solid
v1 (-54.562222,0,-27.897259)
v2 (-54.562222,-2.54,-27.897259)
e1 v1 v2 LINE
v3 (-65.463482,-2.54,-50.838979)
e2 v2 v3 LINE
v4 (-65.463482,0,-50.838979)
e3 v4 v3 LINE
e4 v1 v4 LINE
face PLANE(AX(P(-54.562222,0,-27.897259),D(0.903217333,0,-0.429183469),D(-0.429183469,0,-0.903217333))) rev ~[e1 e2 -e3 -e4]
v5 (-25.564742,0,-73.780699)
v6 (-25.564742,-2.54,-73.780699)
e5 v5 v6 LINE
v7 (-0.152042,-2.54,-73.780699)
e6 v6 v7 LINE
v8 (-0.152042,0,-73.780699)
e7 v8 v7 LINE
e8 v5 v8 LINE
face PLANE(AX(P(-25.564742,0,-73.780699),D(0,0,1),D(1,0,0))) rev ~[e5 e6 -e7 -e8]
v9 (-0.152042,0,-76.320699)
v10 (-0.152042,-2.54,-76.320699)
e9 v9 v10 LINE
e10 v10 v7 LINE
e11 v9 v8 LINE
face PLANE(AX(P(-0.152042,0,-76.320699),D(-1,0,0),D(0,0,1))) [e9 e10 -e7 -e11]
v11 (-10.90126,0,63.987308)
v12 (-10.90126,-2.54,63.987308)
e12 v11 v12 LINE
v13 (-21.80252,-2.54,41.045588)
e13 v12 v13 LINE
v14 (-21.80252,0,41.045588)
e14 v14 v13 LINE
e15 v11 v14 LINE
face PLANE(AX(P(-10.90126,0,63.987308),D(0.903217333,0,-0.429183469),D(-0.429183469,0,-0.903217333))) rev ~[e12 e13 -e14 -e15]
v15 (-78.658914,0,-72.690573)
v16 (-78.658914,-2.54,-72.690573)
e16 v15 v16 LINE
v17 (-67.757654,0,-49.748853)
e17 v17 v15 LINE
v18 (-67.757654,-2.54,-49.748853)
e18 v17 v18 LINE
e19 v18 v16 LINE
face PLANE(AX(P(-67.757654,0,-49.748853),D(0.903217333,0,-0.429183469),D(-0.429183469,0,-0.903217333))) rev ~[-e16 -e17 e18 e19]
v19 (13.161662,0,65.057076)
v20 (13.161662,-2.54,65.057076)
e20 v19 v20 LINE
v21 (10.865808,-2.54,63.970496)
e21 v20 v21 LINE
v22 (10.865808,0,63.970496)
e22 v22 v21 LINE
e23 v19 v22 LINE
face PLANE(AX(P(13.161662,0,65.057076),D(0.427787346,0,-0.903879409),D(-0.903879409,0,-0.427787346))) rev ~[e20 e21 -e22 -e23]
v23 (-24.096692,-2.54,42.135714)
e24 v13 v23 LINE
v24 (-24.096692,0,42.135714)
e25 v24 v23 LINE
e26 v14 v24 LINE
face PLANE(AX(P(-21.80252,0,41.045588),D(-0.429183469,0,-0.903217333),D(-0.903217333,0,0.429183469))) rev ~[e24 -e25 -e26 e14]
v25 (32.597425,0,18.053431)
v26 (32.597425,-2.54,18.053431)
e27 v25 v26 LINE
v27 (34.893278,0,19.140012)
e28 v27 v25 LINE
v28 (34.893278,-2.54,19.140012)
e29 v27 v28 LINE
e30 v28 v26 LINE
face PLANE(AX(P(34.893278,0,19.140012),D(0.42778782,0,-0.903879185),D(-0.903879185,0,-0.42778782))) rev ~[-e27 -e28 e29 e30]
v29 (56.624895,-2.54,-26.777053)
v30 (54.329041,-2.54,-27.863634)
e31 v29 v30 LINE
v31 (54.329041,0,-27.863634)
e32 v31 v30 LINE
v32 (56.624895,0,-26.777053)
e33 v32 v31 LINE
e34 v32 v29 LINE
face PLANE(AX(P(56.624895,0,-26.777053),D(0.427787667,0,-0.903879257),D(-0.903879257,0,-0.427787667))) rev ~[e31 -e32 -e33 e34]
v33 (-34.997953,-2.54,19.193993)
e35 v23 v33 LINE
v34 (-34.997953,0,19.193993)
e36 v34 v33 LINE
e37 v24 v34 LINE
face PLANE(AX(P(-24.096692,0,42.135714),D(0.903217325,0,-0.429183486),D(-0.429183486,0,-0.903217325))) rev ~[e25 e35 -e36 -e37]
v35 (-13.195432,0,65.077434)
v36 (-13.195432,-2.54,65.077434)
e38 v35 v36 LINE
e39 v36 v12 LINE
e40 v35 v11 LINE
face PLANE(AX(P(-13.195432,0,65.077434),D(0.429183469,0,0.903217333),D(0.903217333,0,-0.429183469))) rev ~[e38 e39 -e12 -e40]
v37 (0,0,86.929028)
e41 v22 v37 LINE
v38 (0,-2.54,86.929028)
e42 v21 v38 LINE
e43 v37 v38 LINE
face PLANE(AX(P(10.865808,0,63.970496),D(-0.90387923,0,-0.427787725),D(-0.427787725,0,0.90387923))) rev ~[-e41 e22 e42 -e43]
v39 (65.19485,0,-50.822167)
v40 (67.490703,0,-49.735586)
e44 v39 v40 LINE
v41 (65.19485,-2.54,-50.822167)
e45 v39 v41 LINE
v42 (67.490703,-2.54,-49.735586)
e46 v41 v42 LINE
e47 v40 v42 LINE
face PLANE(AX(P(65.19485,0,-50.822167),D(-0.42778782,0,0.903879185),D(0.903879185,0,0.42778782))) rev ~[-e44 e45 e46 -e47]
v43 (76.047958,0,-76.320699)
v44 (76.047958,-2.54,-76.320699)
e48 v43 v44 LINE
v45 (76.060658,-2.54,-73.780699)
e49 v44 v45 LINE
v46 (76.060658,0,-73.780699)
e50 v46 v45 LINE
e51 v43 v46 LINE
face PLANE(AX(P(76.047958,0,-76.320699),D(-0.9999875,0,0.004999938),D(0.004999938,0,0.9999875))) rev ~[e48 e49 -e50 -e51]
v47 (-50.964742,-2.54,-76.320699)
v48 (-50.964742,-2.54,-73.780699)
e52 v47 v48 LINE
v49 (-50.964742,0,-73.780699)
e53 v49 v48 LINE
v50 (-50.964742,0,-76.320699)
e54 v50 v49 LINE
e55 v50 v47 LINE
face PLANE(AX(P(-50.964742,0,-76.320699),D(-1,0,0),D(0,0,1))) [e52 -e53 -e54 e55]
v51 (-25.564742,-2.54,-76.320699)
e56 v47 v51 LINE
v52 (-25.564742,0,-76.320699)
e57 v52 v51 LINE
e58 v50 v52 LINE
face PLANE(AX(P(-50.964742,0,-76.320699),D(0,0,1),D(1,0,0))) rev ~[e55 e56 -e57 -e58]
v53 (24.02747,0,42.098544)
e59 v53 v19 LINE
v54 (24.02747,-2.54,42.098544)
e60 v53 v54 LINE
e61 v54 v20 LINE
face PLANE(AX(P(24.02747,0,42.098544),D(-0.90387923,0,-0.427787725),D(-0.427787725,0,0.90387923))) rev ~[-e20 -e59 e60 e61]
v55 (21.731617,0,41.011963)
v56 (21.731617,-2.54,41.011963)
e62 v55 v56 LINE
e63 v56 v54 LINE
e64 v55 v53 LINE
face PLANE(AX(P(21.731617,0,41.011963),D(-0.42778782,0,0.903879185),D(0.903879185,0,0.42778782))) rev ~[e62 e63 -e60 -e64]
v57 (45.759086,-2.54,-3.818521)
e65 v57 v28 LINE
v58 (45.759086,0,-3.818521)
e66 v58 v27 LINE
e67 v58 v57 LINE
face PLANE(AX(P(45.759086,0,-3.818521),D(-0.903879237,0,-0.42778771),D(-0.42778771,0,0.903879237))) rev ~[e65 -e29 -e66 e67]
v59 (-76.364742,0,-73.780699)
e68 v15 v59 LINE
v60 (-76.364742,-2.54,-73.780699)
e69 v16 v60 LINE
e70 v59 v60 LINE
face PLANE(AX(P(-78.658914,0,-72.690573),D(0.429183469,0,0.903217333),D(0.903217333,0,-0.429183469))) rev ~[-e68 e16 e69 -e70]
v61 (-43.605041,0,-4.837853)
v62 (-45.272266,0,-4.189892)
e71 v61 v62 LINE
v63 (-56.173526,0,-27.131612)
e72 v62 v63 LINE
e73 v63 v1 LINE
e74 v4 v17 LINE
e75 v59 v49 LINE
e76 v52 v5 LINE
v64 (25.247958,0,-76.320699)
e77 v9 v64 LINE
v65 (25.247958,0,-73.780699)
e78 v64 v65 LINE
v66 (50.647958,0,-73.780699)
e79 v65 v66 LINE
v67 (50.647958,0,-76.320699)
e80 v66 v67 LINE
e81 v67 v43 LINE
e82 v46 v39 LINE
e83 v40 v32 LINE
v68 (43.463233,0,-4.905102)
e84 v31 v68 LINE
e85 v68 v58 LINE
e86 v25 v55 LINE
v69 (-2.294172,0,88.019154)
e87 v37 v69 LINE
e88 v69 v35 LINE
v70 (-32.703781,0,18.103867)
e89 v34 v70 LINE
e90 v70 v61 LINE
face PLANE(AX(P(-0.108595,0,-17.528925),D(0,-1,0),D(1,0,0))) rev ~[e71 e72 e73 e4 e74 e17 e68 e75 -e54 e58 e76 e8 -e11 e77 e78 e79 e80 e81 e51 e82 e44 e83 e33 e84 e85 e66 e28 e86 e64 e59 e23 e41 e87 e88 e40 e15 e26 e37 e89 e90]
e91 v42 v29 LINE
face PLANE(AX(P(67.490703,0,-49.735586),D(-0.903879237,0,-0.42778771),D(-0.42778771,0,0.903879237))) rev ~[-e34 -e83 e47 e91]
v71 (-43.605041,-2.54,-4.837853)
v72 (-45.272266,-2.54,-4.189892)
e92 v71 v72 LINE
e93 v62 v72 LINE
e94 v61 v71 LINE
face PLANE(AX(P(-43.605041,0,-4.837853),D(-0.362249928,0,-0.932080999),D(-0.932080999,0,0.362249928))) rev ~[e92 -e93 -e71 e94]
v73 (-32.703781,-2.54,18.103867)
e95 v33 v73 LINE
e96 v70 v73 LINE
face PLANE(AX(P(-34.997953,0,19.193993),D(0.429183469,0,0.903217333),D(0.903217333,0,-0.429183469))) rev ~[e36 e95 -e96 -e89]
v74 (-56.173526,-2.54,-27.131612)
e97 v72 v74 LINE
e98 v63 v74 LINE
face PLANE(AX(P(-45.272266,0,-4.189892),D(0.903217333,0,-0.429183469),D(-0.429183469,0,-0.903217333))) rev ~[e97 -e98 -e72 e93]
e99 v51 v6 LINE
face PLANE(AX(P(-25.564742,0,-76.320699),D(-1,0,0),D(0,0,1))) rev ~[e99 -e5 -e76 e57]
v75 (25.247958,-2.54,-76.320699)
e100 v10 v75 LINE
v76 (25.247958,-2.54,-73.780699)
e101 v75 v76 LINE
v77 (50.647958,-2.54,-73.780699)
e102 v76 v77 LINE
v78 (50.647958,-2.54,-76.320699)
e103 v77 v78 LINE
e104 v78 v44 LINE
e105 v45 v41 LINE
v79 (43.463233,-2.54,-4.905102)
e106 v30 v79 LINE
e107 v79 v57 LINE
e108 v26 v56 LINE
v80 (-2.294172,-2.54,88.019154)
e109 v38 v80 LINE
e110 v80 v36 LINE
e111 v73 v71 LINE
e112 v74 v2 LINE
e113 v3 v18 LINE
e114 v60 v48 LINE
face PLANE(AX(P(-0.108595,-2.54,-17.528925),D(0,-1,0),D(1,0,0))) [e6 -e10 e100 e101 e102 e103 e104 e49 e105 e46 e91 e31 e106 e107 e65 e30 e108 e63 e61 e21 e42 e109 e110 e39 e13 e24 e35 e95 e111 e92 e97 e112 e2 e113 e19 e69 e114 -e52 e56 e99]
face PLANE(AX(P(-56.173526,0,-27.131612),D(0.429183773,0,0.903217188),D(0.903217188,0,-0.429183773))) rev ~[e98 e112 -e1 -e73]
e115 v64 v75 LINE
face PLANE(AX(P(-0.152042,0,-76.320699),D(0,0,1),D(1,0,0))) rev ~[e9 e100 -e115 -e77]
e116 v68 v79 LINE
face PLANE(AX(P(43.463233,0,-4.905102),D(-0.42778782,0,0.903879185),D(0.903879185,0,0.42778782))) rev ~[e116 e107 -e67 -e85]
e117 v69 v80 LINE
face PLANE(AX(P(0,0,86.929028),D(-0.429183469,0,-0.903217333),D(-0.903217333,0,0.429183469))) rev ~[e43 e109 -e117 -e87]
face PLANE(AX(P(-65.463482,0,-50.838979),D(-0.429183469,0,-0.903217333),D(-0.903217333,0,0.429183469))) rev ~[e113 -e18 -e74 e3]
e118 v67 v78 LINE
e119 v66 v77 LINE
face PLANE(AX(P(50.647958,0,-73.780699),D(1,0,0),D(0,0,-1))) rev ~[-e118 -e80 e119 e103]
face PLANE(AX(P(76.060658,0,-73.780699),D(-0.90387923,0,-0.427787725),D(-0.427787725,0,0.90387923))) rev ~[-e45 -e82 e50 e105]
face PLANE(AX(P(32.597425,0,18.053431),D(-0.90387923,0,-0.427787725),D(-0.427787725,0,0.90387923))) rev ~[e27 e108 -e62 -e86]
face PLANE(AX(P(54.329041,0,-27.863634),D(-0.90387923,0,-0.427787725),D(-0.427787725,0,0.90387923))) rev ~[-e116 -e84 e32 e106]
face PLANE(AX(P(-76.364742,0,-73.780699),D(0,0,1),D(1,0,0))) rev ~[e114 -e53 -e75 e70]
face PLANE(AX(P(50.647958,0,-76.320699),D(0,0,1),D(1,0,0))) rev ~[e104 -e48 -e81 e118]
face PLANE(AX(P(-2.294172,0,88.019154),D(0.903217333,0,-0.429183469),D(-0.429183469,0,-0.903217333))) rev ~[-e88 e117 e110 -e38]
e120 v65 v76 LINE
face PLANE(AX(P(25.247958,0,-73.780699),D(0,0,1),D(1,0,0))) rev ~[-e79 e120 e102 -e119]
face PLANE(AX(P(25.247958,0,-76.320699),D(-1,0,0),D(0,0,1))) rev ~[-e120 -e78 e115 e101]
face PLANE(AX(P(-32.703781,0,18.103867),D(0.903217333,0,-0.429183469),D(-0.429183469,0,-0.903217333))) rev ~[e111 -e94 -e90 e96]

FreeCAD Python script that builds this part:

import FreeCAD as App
import Part
import Sketcher

V = App.Vector
Q = App.Units.Quantity


def add_polygon(sketch, points):
    """Adds a closed chain of lines whose ends are joined by coincident constraints."""
    first, n = sketch.GeometryCount, len(points)
    for a, b in zip(points, points[1:] + points[:1]):
        sketch.addGeometry(Part.LineSegment(App.Vector(*a, 0), App.Vector(*b, 0)), False)
    for i in range(n):
        sketch.addConstraint(Sketcher.Constraint("Coincident", first + i, 2, first + (i + 1) % n, 1))

doc = App.newDocument("Part")
body = doc.addObject("PartDesign::Body", "Body")

# Sketch on XZ plane
sketch1 = body.newObject("Sketcher::SketchObject", "Sketch")
sketch1.AttachmentSupport = (doc.getObject("XZ_Plane"), [""])
sketch1.MapMode = "FlatFace"
add_polygon(sketch1, [(-10.9, 64), (-21.8, 41), (-24.1, 42.1), (-35, 19.2), (-32.7, 18.1), (-43.6, -4.8), (-45.3, -4.2), (-56.2, -27.1), (-54.6, -27.9), (-65.5, -50.8), (-67.8, -49.7), (-78.7, -72.7), (-76.4, -73.8), (-51, -73.8), (-51, -76.3), (-25.6, -76.3), (-25.6, -73.8), (-0.2, -73.8), (-0.2, -76.3), (25.2, -76.3), (25.2, -73.8), (50.6, -73.8), (50.6, -76.3), (76, -76.3), (76.1, -73.8), (65.2, -50.8), (67.5, -49.7), (56.6, -26.8), (54.3, -27.9), (43.5, -4.9), (45.8, -3.8), (34.9, 19.1), (32.6, 18.1), (21.7, 41), (24, 42.1), (13.2, 65.1), (10.9, 64), (0, 86.9), (-2.3, 88), (-13.2, 65.1)])  # lines 0-39
sketch1.addConstraint([
    Sketcher.Constraint("Horizontal", 12),
    Sketcher.Constraint("Vertical", 13),
    Sketcher.Constraint("Horizontal", 14),
    Sketcher.Constraint("Vertical", 15),
    Sketcher.Constraint("Horizontal", 16),
    Sketcher.Constraint("Vertical", 17),
    Sketcher.Constraint("Horizontal", 18),
    Sketcher.Constraint("Vertical", 19),
    Sketcher.Constraint("Horizontal", 20),
    Sketcher.Constraint("Vertical", 21),
    Sketcher.Constraint("Horizontal", 22),
    Sketcher.Constraint("PointOnObject", 36, 2, -2),
    Sketcher.Constraint("Perpendicular", 0, 1),
    Sketcher.Constraint("Perpendicular", 1, 2),
    Sketcher.Constraint("Perpendicular", 2, 3),
    Sketcher.Constraint("Perpendicular", 3, 4),
    Sketcher.Constraint("Parallel", 4, 6),
    Sketcher.Constraint("Perpendicular", 6, 7),
    Sketcher.Constraint("Perpendicular", 7, 8),
    Sketcher.Constraint("Perpendicular", 8, 9),
    Sketcher.Constraint("Perpendicular", 9, 10),
    Sketcher.Constraint("Perpendicular", 10, 11),
    Sketcher.Constraint("Perpendicular", 24, 25),
    Sketcher.Constraint("Perpendicular", 25, 26),
    Sketcher.Constraint("Perpendicular", 26, 27),
    Sketcher.Constraint("Perpendicular", 27, 28),
    Sketcher.Constraint("Perpendicular", 28, 29),
    Sketcher.Constraint("Perpendicular", 29, 30),
    Sketcher.Constraint("Perpendicular", 30, 31),
    Sketcher.Constraint("Perpendicular", 31, 32),
    Sketcher.Constraint("Perpendicular", 32, 33),
    Sketcher.Constraint("Perpendicular", 33, 34),
    Sketcher.Constraint("Perpendicular", 34, 35),
    Sketcher.Constraint("Perpendicular", 35, 36),
    Sketcher.Constraint("Parallel", 11, 37),
    Sketcher.Constraint("Perpendicular", 37, 38),
    Sketcher.Constraint("Perpendicular", 38, 39),
    Sketcher.Constraint("Horizontal", 12, 2, 15, 2),
    Sketcher.Constraint("Horizontal", 14, 2, 17, 2),
    Sketcher.Constraint("Horizontal", 16, 2, 19, 2),
    Sketcher.Constraint("Horizontal", 18, 2, 21, 2),
    Sketcher.Constraint("Horizontal", 20, 2, 23, 2),
    Sketcher.Constraint("Equal", 12, 14),
    Sketcher.Constraint("Equal", 14, 18),
    Sketcher.Constraint("Equal", 18, 20),
    Sketcher.Constraint("Equal", 20, 22),
    Sketcher.Constraint("Equal", 0, 2),
    Sketcher.Constraint("Equal", 1, 3),
    Sketcher.Constraint("Equal", 2, 4),
    Sketcher.Constraint("Equal", 4, 6),
    Sketcher.Constraint("Equal", 6, 8),
    Sketcher.Constraint("Equal", 3, 9),
    Sketcher.Constraint("Equal", 8, 10),
    Sketcher.Constraint("Equal", 9, 11),
    Sketcher.Constraint("Equal", 10, 24),
    Sketcher.Constraint("Equal", 11, 25),
    Sketcher.Constraint("Equal", 24, 26),
    Sketcher.Constraint("Equal", 25, 27),
    Sketcher.Constraint("Equal", 26, 28),
    Sketcher.Constraint("Equal", 27, 29),
    Sketcher.Constraint("Equal", 28, 30),
    Sketcher.Constraint("Equal", 29, 31),
    Sketcher.Constraint("Equal", 30, 32),
    Sketcher.Constraint("Equal", 31, 33),
    Sketcher.Constraint("Equal", 32, 34),
    Sketcher.Constraint("Equal", 33, 35),
    Sketcher.Constraint("Equal", 34, 36),
    Sketcher.Constraint("Equal", 35, 37),
    Sketcher.Constraint("Equal", 36, 38),
    Sketcher.Constraint("Equal", 37, 39),
    Sketcher.Constraint("DistanceX", 12, 1, 12, 2, Q("1 in")),
    Sketcher.Constraint("Distance", 0, Q("1 in")),
    Sketcher.Constraint("DistanceY", 13, 2, 13, 1, Q("0.1 in")),
    Sketcher.Constraint("Distance", 1, Q("0.1 in")),
    Sketcher.Constraint("DistanceX", 16, 1, 16, 2, Q("1.0005 in")),
    Sketcher.Constraint("DistanceX", 22, 2, 23, 2, Q("0.0005 in")),
    Sketcher.Constraint("DistanceX", 25, 2, 23, 2, Q("0.3373998 in")),
    Sketcher.Constraint("DistanceY", 11, 2, -1, 1, Q("73.780699 mm")),
    Sketcher.Constraint("DistanceX", 8, 2, 3, 2, Q("32.759701 mm")),
    Sketcher.Constraint("Distance", 7, Q("1.783961 mm")),
])
pad1 = body.newObject("PartDesign::Pad", "Pad")
pad1.Profile = sketch1
pad1.Length = Q("0.1 in")

# Sketch on XZ plane
sketch2 = body.newObject("Sketcher::SketchObject", "Sketch001")
sketch2.AttachmentSupport = (doc.getObject("XZ_Plane"), [""])
sketch2.MapMode = "FlatFace"
add_polygon(sketch2, [(-10.9, 64), (-21.8, 41), (-24.1, 42.1), (-35, 19.2), (-32.7, 18.1), (-43.6, -4.8), (-45.3, -4.2), (-56.2, -27.1), (-54.6, -27.9), (-65.5, -50.8), (-67.8, -49.7), (-78.7, -72.7), (-76.4, -73.8), (-51, -73.8), (-51, -76.3), (-25.6, -76.3), (-25.6, -73.8), (-0.2, -73.8), (-0.2, -76.3), (25.2, -76.3), (25.2, -73.8), (50.6, -73.8), (50.6, -76.3), (76, -76.3), (76.1, -73.8), (65.2, -50.8), (67.5, -49.7), (56.6, -26.8), (54.3, -27.9), (43.5, -4.9), (45.8, -3.8), (34.9, 19.1), (32.6, 18.1), (21.7, 41), (24, 42.1), (13.2, 65.1), (10.9, 64), (0, 86.9), (-2.3, 88), (-13.2, 65.1)])  # lines 0-39
sketch2.addConstraint([
    Sketcher.Constraint("Horizontal", 12),
    Sketcher.Constraint("Vertical", 13),
    Sketcher.Constraint("Horizontal", 14),
    Sketcher.Constraint("Vertical", 15),
    Sketcher.Constraint("Horizontal", 16),
    Sketcher.Constraint("Vertical", 17),
    Sketcher.Constraint("Horizontal", 18),
    Sketcher.Constraint("Vertical", 19),
    Sketcher.Constraint("Horizontal", 20),
    Sketcher.Constraint("Vertical", 21),
    Sketcher.Constraint("Horizontal", 22),
    Sketcher.Constraint("PointOnObject", 36, 2, -2),
    Sketcher.Constraint("Perpendicular", 0, 1),
    Sketcher.Constraint("Perpendicular", 1, 2),
    Sketcher.Constraint("Perpendicular", 2, 3),
    Sketcher.Constraint("Perpendicular", 3, 4),
    Sketcher.Constraint("Parallel", 4, 6),
    Sketcher.Constraint("Perpendicular", 6, 7),
    Sketcher.Constraint("Perpendicular", 7, 8),
    Sketcher.Constraint("Perpendicular", 8, 9),
    Sketcher.Constraint("Perpendicular", 9, 10),
    Sketcher.Constraint("Perpendicular", 10, 11),
    Sketcher.Constraint("Perpendicular", 24, 25),
    Sketcher.Constraint("Perpendicular", 25, 26),
    Sketcher.Constraint("Perpendicular", 26, 27),
    Sketcher.Constraint("Perpendicular", 27, 28),
    Sketcher.Constraint("Perpendicular", 28, 29),
    Sketcher.Constraint("Perpendicular", 29, 30),
    Sketcher.Constraint("Perpendicular", 30, 31),
    Sketcher.Constraint("Perpendicular", 31, 32),
    Sketcher.Constraint("Perpendicular", 32, 33),
    Sketcher.Constraint("Perpendicular", 33, 34),
    Sketcher.Constraint("Perpendicular", 34, 35),
    Sketcher.Constraint("Perpendicular", 35, 36),
    Sketcher.Constraint("Parallel", 11, 37),
    Sketcher.Constraint("Perpendicular", 37, 38),
    Sketcher.Constraint("Perpendicular", 38, 39),
    Sketcher.Constraint("Horizontal", 12, 2, 15, 2),
    Sketcher.Constraint("Horizontal", 14, 2, 17, 2),
    Sketcher.Constraint("Horizontal", 16, 2, 19, 2),
    Sketcher.Constraint("Horizontal", 18, 2, 21, 2),
    Sketcher.Constraint("Horizontal", 20, 2, 23, 2),
    Sketcher.Constraint("Equal", 12, 14),
    Sketcher.Constraint("Equal", 14, 18),
    Sketcher.Constraint("Equal", 18, 20),
    Sketcher.Constraint("Equal", 20, 22),
    Sketcher.Constraint("Equal", 0, 2),
    Sketcher.Constraint("Equal", 1, 3),
    Sketcher.Constraint("Equal", 2, 4),
    Sketcher.Constraint("Equal", 4, 6),
    Sketcher.Constraint("Equal", 6, 8),
    Sketcher.Constraint("Equal", 3, 9),
    Sketcher.Constraint("Equal", 8, 10),
    Sketcher.Constraint("Equal", 9, 11),
    Sketcher.Constraint("Equal", 10, 24),
    Sketcher.Constraint("Equal", 11, 25),
    Sketcher.Constraint("Equal", 24, 26),
    Sketcher.Constraint("Equal", 25, 27),
    Sketcher.Constraint("Equal", 26, 28),
    Sketcher.Constraint("Equal", 27, 29),
    Sketcher.Constraint("Equal", 28, 30),
    Sketcher.Constraint("Equal", 29, 31),
    Sketcher.Constraint("Equal", 30, 32),
    Sketcher.Constraint("Equal", 31, 33),
    Sketcher.Constraint("Equal", 32, 34),
    Sketcher.Constraint("Equal", 33, 35),
    Sketcher.Constraint("Equal", 34, 36),
    Sketcher.Constraint("Equal", 35, 37),
    Sketcher.Constraint("Equal", 36, 38),
    Sketcher.Constraint("Equal", 37, 39),
    Sketcher.Constraint("DistanceX", 12, 1, 12, 2, Q("1 in")),
    Sketcher.Constraint("Distance", 0, Q("1 in")),
    Sketcher.Constraint("DistanceY", 13, 2, 13, 1, Q("0.1 in")),
    Sketcher.Constraint("Distance", 1, Q("0.1 in")),
    Sketcher.Constraint("DistanceX", 16, 1, 16, 2, Q("1.0005 in")),
    Sketcher.Constraint("DistanceX", 22, 2, 23, 2, Q("0.0005 in")),
    Sketcher.Constraint("DistanceX", 25, 2, 23, 2, Q("0.3373998 in")),
    Sketcher.Constraint("DistanceY", 11, 2, -1, 1, Q("73.780699 mm")),
    Sketcher.Constraint("DistanceX", 8, 2, 3, 2, Q("32.759701 mm")),
    Sketcher.Constraint("Distance", 7, Q("1.783961 mm")),
])
pad2 = body.newObject("PartDesign::Pad", "Pad001")
pad2.Profile = sketch2
pad2.Length = Q("0.1 in")

doc.recompute()
